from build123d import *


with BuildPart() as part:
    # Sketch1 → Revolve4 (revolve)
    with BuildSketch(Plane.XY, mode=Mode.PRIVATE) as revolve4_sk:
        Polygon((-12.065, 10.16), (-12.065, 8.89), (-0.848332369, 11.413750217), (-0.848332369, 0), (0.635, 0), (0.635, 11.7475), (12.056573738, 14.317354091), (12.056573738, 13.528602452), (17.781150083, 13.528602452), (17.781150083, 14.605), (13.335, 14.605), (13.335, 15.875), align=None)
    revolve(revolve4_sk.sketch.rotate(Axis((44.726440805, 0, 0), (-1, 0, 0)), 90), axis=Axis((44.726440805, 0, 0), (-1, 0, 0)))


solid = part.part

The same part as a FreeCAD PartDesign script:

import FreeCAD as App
import Part
import Sketcher
Q = App.Units.Quantity


def add_polygon(sketch, points):
    """Adds a closed chain of lines whose ends are joined by coincident constraints."""
    first, n = sketch.GeometryCount, len(points)
    for a, b in zip(points, points[1:] + points[:1]):
        sketch.addGeometry(Part.LineSegment(App.Vector(*a, 0), App.Vector(*b, 0)), False)
    for i in range(n):
        sketch.addConstraint(Sketcher.Constraint("Coincident", first + i, 2, first + (i + 1) % n, 1))

doc = App.newDocument("Part")
body = doc.addObject("PartDesign::Body", "Body")

# Sketch on XY plane
sketch1 = doc.addObject("Sketcher::SketchObject", "Sketch")
body.addObject(sketch1)
sketch1.AttachmentSupport = (doc.XY_Plane, [""])
sketch1.MapMode = "FlatFace"
add_polygon(sketch1, [(-12.1, 10.2), (-12.1, 8.9), (-0.8, 11.4), (-0.8, 0), (0.6, 0), (0.6, 11.7), (12.1, 14.3), (12.1, 13.5), (17.8, 13.5), (17.8, 14.6), (13.3, 14.6), (13.3, 15.9)])  # lines 0-11
sketch1.addConstraint(Sketcher.Constraint("Vertical", 0))
sketch1.addConstraint(Sketcher.Constraint("Vertical", 2))
sketch1.addConstraint(Sketcher.Constraint("Horizontal", 3))
sketch1.addConstraint(Sketcher.Constraint("Vertical", 4))
sketch1.addConstraint(Sketcher.Constraint("Vertical", 6))
sketch1.addConstraint(Sketcher.Constraint("Horizontal", 7))
sketch1.addConstraint(Sketcher.Constraint("Vertical", 8))
sketch1.addConstraint(Sketcher.Constraint("Horizontal", 9))
sketch1.addConstraint(Sketcher.Constraint("Vertical", 10))
sketch1.addConstraint(Sketcher.Constraint("PointOnObject", 2, 2, -1))
sketch1.addConstraint(Sketcher.Constraint("Parallel", 1, 5))
sketch1.addConstraint(Sketcher.Constraint("Parallel", 5, 11))
sketch1.addConstraint(Sketcher.Constraint("Equal", 0, 10))
sketch1.addConstraint(Sketcher.Constraint("DistanceY", 0, 2, 0, 1, Q("0.05 in")))
sketch1.addConstraint(Sketcher.Constraint("DistanceY", -1, 1, 11, 2, Q("0.4 in")))
sketch1.addConstraint(Sketcher.Constraint("DistanceX", 0, 2, 3, 2, Q("0.5 in")))
sketch1.addConstraint(Sketcher.Constraint("DistanceX", 4, 2, 9, 2, Q("0.5 in")))
sketch1.addConstraint(Sketcher.Constraint("Distance", 11, Q("1.025 in")))
sketch1.addConstraint(Sketcher.Constraint("DistanceY", 4, 1, 4, 2, Q("0.4625 in")))
sketch1.addConstraint(Sketcher.Constraint("DistanceX", 0, 2, -1, 1, Q("0.475 in")))
sketch1.addConstraint(Sketcher.Constraint("DistanceX", 9, 2, 9, 1, 4.44615))
sketch1.addConstraint(Sketcher.Constraint("DistanceY", 2, 2, 2, 1, 11.41375))
sketch1.addConstraint(Sketcher.Constraint("DistanceY", 6, 2, 6, 1, 0.788752))
sketch1.addConstraint(Sketcher.Constraint("DistanceX", 7, 1, 7, 2, 5.724576))
revolution = doc.addObject("PartDesign::Revolution", "Revolution")
body.addObject(revolution)
revolution.Profile = sketch1
revolution.ReferenceAxis = (sketch1, ["H_Axis"])
revolution.Angle = 360

doc.recompute()
